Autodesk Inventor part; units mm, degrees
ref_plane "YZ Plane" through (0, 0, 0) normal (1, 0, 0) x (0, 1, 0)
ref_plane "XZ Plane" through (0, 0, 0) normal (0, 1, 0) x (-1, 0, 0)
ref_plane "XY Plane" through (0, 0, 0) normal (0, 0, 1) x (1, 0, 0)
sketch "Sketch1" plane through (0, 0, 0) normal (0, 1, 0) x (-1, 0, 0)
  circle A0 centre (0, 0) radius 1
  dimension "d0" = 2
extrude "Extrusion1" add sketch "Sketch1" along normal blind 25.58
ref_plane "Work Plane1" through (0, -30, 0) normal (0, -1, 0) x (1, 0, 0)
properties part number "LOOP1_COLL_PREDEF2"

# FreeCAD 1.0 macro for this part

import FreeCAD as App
import Part
import Sketcher

V = App.Vector

doc = App.newDocument("Part")
body = doc.addObject("PartDesign::Body", "Body")

# Sketch on XZ plane
sketch1 = body.newObject("Sketcher::SketchObject", "Sketch")
sketch1.AttachmentSupport = (doc.getObject("XZ_Plane"), [""])
sketch1.MapMode = "FlatFace"
sketch1.addGeometry(Part.Circle(V(0, 0, 0), V(0, 0, 1), 1), False)
sketch1.addConstraint([
    Sketcher.Constraint("Coincident", 0, 3, -1, 1),
    Sketcher.Constraint("Diameter", 0, 2.0),
])
pad1 = body.newObject("PartDesign::Pad", "Pad")
pad1.Profile = sketch1
pad1.Length = 25.58
pad1.Reversed = True

doc.recompute()
